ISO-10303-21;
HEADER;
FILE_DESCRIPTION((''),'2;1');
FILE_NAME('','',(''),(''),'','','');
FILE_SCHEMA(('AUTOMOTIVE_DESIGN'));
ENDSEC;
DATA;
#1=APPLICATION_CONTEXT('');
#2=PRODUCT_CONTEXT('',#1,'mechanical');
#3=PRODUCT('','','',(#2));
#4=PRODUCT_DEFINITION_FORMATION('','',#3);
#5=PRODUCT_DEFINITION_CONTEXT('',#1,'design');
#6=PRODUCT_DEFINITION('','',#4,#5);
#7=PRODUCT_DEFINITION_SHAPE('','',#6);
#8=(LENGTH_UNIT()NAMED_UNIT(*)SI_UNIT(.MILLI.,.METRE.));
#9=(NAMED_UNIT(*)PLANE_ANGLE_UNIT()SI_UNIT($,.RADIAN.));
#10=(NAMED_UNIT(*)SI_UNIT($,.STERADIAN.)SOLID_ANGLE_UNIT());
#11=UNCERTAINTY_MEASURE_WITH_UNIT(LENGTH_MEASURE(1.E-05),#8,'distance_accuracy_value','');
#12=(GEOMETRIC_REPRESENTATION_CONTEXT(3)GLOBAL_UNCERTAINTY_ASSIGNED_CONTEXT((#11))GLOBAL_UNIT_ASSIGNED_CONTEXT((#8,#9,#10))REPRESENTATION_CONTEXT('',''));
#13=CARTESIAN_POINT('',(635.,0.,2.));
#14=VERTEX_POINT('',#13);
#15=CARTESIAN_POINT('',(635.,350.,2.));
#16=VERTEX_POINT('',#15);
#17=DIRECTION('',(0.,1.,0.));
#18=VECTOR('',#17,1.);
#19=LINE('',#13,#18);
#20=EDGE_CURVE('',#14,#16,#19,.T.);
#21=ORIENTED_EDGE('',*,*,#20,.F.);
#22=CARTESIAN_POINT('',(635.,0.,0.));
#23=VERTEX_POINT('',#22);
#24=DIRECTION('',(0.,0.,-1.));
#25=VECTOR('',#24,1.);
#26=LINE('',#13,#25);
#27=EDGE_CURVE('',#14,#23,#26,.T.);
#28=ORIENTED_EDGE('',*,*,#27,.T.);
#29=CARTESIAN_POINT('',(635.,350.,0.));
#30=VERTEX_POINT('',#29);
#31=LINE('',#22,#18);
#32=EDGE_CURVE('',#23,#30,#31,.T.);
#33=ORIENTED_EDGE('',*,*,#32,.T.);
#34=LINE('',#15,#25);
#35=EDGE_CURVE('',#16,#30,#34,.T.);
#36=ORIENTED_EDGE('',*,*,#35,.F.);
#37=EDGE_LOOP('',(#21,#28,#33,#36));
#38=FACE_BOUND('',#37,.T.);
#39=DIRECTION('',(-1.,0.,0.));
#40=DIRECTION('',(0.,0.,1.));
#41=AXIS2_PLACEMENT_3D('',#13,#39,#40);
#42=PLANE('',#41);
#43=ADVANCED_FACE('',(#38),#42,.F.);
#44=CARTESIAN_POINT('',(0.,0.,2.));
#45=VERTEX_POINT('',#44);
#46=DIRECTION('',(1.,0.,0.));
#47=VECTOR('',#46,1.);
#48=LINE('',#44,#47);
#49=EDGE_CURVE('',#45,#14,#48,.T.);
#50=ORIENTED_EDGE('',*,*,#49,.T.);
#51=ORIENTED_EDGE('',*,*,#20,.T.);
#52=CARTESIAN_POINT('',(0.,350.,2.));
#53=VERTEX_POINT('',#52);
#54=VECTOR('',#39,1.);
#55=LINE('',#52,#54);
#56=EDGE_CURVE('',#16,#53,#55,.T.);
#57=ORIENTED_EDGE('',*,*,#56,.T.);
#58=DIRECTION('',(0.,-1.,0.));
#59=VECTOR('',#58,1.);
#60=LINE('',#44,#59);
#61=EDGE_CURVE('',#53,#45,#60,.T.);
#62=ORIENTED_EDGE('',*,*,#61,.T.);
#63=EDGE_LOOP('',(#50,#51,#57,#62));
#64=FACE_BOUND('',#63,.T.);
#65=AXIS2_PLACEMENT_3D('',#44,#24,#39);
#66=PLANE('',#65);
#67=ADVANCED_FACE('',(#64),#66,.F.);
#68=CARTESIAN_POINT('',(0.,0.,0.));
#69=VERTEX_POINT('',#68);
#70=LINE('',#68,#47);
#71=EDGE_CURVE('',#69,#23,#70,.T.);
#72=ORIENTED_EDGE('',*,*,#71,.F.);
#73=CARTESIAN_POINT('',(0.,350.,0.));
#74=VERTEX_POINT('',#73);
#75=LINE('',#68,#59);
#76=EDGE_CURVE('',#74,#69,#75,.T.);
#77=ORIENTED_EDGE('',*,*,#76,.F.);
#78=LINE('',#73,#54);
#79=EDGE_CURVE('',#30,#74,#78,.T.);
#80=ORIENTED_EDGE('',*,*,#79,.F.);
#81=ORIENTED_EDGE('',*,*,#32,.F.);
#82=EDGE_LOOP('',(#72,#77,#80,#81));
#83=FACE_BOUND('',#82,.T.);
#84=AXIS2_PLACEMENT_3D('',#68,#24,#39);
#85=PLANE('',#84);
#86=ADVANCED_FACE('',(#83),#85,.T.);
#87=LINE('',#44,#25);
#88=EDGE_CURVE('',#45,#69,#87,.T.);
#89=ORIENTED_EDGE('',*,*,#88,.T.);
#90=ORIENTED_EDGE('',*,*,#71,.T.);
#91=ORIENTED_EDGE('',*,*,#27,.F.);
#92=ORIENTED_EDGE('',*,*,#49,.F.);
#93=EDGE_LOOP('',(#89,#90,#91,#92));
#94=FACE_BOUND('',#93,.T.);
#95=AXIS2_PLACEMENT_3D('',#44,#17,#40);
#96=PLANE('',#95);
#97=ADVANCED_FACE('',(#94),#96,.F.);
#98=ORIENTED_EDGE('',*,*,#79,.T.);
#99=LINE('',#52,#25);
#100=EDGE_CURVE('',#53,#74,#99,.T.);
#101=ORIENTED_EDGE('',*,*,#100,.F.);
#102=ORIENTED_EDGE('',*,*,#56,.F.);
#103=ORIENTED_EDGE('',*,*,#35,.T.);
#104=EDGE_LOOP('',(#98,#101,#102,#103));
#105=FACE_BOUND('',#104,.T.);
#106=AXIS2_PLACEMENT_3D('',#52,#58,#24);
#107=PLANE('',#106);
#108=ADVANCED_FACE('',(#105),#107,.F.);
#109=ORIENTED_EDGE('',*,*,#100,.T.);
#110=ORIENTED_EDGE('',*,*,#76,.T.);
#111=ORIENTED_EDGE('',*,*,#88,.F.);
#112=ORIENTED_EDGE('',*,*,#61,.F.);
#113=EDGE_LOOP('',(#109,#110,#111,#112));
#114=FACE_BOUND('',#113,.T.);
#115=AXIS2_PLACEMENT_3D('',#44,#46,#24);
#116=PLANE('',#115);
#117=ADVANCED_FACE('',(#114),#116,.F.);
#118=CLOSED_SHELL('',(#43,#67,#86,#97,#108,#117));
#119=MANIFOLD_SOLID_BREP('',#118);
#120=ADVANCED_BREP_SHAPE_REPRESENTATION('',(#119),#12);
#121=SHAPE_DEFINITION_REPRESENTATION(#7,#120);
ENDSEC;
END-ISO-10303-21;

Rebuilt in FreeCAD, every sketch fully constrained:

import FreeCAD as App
import Part
import Sketcher
from FreeCAD import Vector
Q = App.Units.Quantity

doc = App.newDocument("Part")
body = doc.addObject("PartDesign::Body", "Body")

# Sketch on XY plane
sketch1 = doc.addObject("Sketcher::SketchObject", "Sketch")
body.addObject(sketch1)
sketch1.AttachmentSupport = (doc.XY_Plane, [""])
sketch1.MapMode = "FlatFace"
sketch1.addGeometry([
    Part.LineSegment(Vector(0, 350, 0), Vector(0, 0, 0)),
    Part.LineSegment(Vector(0, 0, 0), Vector(635, 0, 0)),
    Part.LineSegment(Vector(635, 0, 0), Vector(635, 350, 0)),
    Part.LineSegment(Vector(635, 350, 0), Vector(0, 350, 0)),
], False)
sketch1.addConstraint([
    Sketcher.Constraint("Coincident", 0, 2, 1, 1),
    Sketcher.Constraint("Coincident", 1, 2, 2, 1),
    Sketcher.Constraint("Coincident", 2, 2, 3, 1),
    Sketcher.Constraint("Coincident", 3, 2, 0, 1),
    Sketcher.Constraint("Vertical", 0),
    Sketcher.Constraint("Horizontal", 1),
    Sketcher.Constraint("Vertical", 2),
    Sketcher.Constraint("Horizontal", 3),
    Sketcher.Constraint("Coincident", 0, 2, -1, 1),
    Sketcher.Constraint("DistanceX", 1, 1, 1, 2, Q("635 mm")),
    Sketcher.Constraint("DistanceY", 0, 2, 0, 1, Q("350 mm")),
])
pad1 = doc.addObject("PartDesign::Pad", "Pad")
body.addObject(pad1)
pad1.Profile = sketch1
pad1.Length = 2

doc.recompute()
